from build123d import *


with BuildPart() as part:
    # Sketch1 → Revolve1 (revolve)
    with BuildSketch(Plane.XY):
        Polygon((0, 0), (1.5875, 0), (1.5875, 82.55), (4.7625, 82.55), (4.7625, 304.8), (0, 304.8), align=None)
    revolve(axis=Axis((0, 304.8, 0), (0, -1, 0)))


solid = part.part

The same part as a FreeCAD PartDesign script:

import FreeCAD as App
import Part
import Sketcher
Q = App.Units.Quantity

doc = App.newDocument("Part")
body = doc.addObject("PartDesign::Body", "Body")

# Sketch on XY plane
sketch1 = body.newObject("Sketcher::SketchObject", "Sketch")
sketch1.AttachmentSupport = (doc.getObject("XY_Plane"), [""])
sketch1.MapMode = "FlatFace"
sketch1.addGeometry([
    Part.LineSegment(App.Vector(0, 0, 0), App.Vector(1.6, 0, 0)),  # 0
    Part.LineSegment(App.Vector(1.6, 0, 0), App.Vector(1.6, 82.5, 0)),  # 1
    Part.LineSegment(App.Vector(1.6, 82.5, 0), App.Vector(4.8, 82.5, 0)),  # 2
    Part.LineSegment(App.Vector(4.8, 82.5, 0), App.Vector(4.8, 304.8, 0)),  # 3
    Part.LineSegment(App.Vector(4.8, 304.8, 0), App.Vector(0, 304.8, 0)),  # 4
    Part.LineSegment(App.Vector(0, 304.8, 0), App.Vector(0, 0, 0)),  # 5
], False)
sketch1.addConstraint([
    Sketcher.Constraint("Coincident", 0, 2, 1, 1),
    Sketcher.Constraint("Coincident", 1, 2, 2, 1),
    Sketcher.Constraint("Coincident", 2, 2, 3, 1),
    Sketcher.Constraint("Coincident", 3, 2, 4, 1),
    Sketcher.Constraint("Coincident", 4, 2, 5, 1),
    Sketcher.Constraint("Coincident", 5, 2, 0, 1),
    Sketcher.Constraint("Horizontal", 0),
    Sketcher.Constraint("Vertical", 1),
    Sketcher.Constraint("Horizontal", 2),
    Sketcher.Constraint("Vertical", 3),
    Sketcher.Constraint("Horizontal", 4),
    Sketcher.Constraint("Vertical", 5),
    Sketcher.Constraint("Coincident", 5, 2, -1, 1),
    Sketcher.Constraint("DistanceY", 5, 2, 5, 1, Q("12 in")),
    Sketcher.Constraint("DistanceY", 1, 1, 1, 2, Q("3.25 in")),
    Sketcher.Constraint("DistanceX", 0, 1, 0, 2, Q("0.0625 in")),
    Sketcher.Constraint("DistanceX", 2, 1, 2, 2, Q("0.125 in")),
])
revolution = body.newObject("PartDesign::Revolution", "Revolution")
revolution.Profile = sketch1
revolution.ReferenceAxis = (sketch1, ["V_Axis"])
revolution.Angle = 360

doc.recompute()
